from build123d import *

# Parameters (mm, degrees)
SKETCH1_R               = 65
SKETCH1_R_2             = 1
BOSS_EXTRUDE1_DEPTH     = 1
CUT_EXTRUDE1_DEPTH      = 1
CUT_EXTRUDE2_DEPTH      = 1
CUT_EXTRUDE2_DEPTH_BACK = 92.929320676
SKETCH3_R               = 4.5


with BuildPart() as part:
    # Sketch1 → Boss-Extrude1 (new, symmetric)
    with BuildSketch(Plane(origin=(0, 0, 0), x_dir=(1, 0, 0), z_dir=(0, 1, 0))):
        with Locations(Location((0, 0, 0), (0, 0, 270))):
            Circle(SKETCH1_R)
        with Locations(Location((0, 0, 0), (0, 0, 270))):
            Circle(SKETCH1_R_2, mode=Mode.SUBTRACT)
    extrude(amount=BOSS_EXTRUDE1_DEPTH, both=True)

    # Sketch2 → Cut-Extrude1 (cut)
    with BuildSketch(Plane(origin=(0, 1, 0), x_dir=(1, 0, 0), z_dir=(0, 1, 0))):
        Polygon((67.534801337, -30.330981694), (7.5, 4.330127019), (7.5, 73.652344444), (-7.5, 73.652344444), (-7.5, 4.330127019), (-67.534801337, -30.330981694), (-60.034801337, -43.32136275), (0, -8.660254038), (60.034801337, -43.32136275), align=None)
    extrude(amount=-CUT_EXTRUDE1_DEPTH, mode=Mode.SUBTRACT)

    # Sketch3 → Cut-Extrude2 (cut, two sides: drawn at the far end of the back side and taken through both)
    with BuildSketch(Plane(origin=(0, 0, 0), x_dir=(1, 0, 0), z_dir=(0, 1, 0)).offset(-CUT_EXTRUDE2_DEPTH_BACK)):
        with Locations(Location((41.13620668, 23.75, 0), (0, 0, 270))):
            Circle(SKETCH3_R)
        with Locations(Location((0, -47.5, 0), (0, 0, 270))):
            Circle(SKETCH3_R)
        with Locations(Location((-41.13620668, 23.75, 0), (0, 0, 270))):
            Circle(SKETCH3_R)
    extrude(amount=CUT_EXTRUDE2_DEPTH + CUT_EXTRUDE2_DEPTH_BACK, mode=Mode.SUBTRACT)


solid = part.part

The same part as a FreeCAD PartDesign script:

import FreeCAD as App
import Part
import Sketcher
Q = App.Units.Quantity

doc = App.newDocument("Part")
body = doc.addObject("PartDesign::Body", "Body")

sketch1 = body.newObject("Sketcher::SketchObject", "Sketch")
sketch1.AttachmentSupport = (doc.getObject("XZ_Plane"), [""])
sketch1.MapMode = "FlatFace"
sketch1.addGeometry([
    Part.Circle(App.Vector(0, 0, 0), App.Vector(0, 0, 1), 65),
    Part.Circle(App.Vector(0, 0, 0), App.Vector(0, 0, 1), 1),
], False)
sketch1.addConstraint([
    Sketcher.Constraint("Coincident", 0, 3, -1, 1),
    Sketcher.Constraint("Coincident", 1, 3, -1, 1),
    Sketcher.Constraint("Diameter", 0, Q("130 mm")),
    Sketcher.Constraint("Diameter", 1, Q("2 mm")),
])
pad1 = body.newObject("PartDesign::Pad", "Pad")
pad1.Profile = sketch1
pad1.Length = 2
pad1.Midplane = True

sketch2 = body.newObject("Sketcher::SketchObject", "Sketch001")
sketch2.AttachmentSupport = (doc.getObject("XZ_Plane"), [""])
sketch2.MapMode = "FlatFace"
sketch2.AttachmentOffset = App.Placement(App.Vector(0, 0, -1), App.Rotation())
sketch2.addGeometry([
    Part.LineSegment(App.Vector(67.534801, 30.330982, 0), App.Vector(7.5, -4.330127, 0)),
    Part.LineSegment(App.Vector(7.5, -4.330127, 0), App.Vector(7.5, -73.652344, 0)),
    Part.LineSegment(App.Vector(7.5, -73.652344, 0), App.Vector(-7.5, -73.652344, 0)),
    Part.LineSegment(App.Vector(-7.5, -73.652344, 0), App.Vector(-7.5, -4.330127, 0)),
    Part.LineSegment(App.Vector(-7.5, -4.330127, 0), App.Vector(-67.534801, 30.330982, 0)),
    Part.LineSegment(App.Vector(-67.534801, 30.330982, 0), App.Vector(-60.034801, 43.321363, 0)),
    Part.LineSegment(App.Vector(-60.034801, 43.321363, 0), App.Vector(0, 8.660254, 0)),
    Part.LineSegment(App.Vector(0, 8.660254, 0), App.Vector(60.034801, 43.321363, 0)),
    Part.LineSegment(App.Vector(60.034801, 43.321363, 0), App.Vector(67.534801, 30.330982, 0)),
], False)
sketch2.addConstraint([
    Sketcher.Constraint("Coincident", 0, 2, 1, 1),
    Sketcher.Constraint("Coincident", 1, 2, 2, 1),
    Sketcher.Constraint("Coincident", 2, 2, 3, 1),
    Sketcher.Constraint("Coincident", 3, 2, 4, 1),
    Sketcher.Constraint("Coincident", 4, 2, 5, 1),
    Sketcher.Constraint("Coincident", 5, 2, 6, 1),
    Sketcher.Constraint("Coincident", 6, 2, 7, 1),
    Sketcher.Constraint("Coincident", 7, 2, 8, 1),
    Sketcher.Constraint("Coincident", 8, 2, 0, 1),
    Sketcher.Constraint("Vertical", 1),
    Sketcher.Constraint("Horizontal", 2),
    Sketcher.Constraint("Vertical", 3),
    Sketcher.Constraint("Symmetric", 0, 2, 3, 2, -2),
    Sketcher.Constraint("Symmetric", 5, 2, 7, 2, -2),
    Sketcher.Constraint("Symmetric", 4, 2, 8, 2, -2),
    Sketcher.Constraint("PointOnObject", 6, 2, -2),
    Sketcher.Constraint("Perpendicular", 4, 5),
    Sketcher.Constraint("Perpendicular", 5, 6),
    Sketcher.Constraint("Equal", 4, 6),
    Sketcher.Constraint("DistanceX", 2, 2, 2, 1, Q("15 mm")),
    Sketcher.Constraint("Angle", 0, Q("-150 deg")),
    Sketcher.Constraint("DistanceX", 4, 2, -1, 1, Q("67.534801 mm")),
    Sketcher.Constraint("DistanceY", 1, 2, 6, 2, Q("82.312598 mm")),
    Sketcher.Constraint("DistanceY", -1, 1, 4, 2, Q("30.330982 mm")),
])
pocket1 = body.newObject("PartDesign::Pocket", "Pocket")
pocket1.Profile = sketch2
pocket1.Length = 1
pocket1.Reversed = True

sketch3 = body.newObject("Sketcher::SketchObject", "Sketch002")
sketch3.AttachmentSupport = (doc.getObject("XZ_Plane"), [""])
sketch3.MapMode = "FlatFace"
sketch3.addGeometry([
    Part.Circle(App.Vector(41.136207, -23.75, 0), App.Vector(0, 0, 1), 4.5),
    Part.Circle(App.Vector(0, 47.5, 0), App.Vector(0, 0, 1), 4.5),
    Part.Circle(App.Vector(-41.136207, -23.75, 0), App.Vector(0, 0, 1), 4.5),
], False)
sketch3.addConstraint([
    Sketcher.Constraint("Equal", 0, 1),
    Sketcher.Constraint("Equal", 1, 2),
    Sketcher.Constraint("Symmetric", 0, 3, 2, 3, -2),
    Sketcher.Constraint("PointOnObject", 1, 3, -2),
    Sketcher.Constraint("Diameter", 0, Q("9 mm")),
    Sketcher.Constraint("DistanceY", -1, 1, 1, 3, Q("47.5 mm")),
    Sketcher.Constraint("DistanceY", 0, 3, -1, 1, Q("23.75 mm")),
    Sketcher.Constraint("DistanceX", -1, 1, 0, 3, Q("41.136207 mm")),
])
pocket2 = body.newObject("PartDesign::Pocket", "Pocket001")
pocket2.Profile = sketch3
pocket2.Type = "ThroughAll"
pocket2.Midplane = True

doc.recompute()
